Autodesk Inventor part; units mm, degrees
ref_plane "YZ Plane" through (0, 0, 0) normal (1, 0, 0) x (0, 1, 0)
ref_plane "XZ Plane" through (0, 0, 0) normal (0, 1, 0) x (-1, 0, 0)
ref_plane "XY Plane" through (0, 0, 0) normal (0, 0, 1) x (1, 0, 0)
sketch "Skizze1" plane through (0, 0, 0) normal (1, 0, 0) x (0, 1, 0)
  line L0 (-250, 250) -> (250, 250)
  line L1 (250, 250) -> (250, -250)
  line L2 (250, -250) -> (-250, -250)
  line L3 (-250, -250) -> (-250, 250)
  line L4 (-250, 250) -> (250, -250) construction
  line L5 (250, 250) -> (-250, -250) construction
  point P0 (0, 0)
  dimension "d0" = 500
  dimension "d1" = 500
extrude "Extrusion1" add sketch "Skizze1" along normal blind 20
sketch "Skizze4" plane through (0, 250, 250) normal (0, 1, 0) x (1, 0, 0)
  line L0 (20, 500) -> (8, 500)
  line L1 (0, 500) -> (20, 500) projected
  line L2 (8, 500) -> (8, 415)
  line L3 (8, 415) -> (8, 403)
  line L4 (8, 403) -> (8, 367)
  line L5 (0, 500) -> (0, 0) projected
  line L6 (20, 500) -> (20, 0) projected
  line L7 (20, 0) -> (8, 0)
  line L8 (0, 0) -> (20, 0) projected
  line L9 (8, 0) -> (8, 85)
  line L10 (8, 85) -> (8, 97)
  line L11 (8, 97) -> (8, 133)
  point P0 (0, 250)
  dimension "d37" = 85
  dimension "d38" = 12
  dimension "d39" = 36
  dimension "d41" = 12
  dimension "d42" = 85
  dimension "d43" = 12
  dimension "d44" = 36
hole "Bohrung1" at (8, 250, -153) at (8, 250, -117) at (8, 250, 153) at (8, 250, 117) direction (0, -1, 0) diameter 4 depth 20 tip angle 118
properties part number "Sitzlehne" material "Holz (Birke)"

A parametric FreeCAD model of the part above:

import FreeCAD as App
import Part
import Sketcher

V = App.Vector
Q = App.Units.Quantity

doc = App.newDocument("Part")
params = doc.addObject("Spreadsheet::Sheet", "Params")
for row, (alias, value) in enumerate([
    ("sketch1_width", "500 mm"),
    ("pad1_length", "20 mm"),
    ("sketch2_diameter", "4 mm"),
    ("hole_diameter", "4 mm"),
    ("hole_depth", "20 mm"),
], start=1):
    params.set(f"A{row}", alias)
    params.set(f"B{row}", "=" + value)
    params.setAlias(f"B{row}", alias)

body = doc.addObject("PartDesign::Body", "Body")

# Sketch on YZ plane
sketch1 = body.newObject("Sketcher::SketchObject", "Sketch")
sketch1.AttachmentSupport = (doc.getObject("YZ_Plane"), [""])
sketch1.MapMode = "FlatFace"
sketch1.addGeometry([
    Part.LineSegment(V(250, 250, 0), V(-250, 250, 0)),
    Part.LineSegment(V(-250, 250, 0), V(-250, -250, 0)),
    Part.LineSegment(V(-250, -250, 0), V(250, -250, 0)),
    Part.LineSegment(V(250, -250, 0), V(250, 250, 0)),
], False)
sketch1.addConstraint([
    Sketcher.Constraint("Coincident", 0, 2, 1, 1),
    Sketcher.Constraint("Coincident", 1, 2, 2, 1),
    Sketcher.Constraint("Coincident", 2, 2, 3, 1),
    Sketcher.Constraint("Coincident", 3, 2, 0, 1),
    Sketcher.Constraint("Horizontal", 0),
    Sketcher.Constraint("Vertical", 1),
    Sketcher.Constraint("Horizontal", 2),
    Sketcher.Constraint("Vertical", 3),
    Sketcher.Constraint("Symmetric", 0, 2, 2, 2, -1, 1),
    Sketcher.Constraint("Equal", 2, 1),
    Sketcher.Constraint("DistanceX", 0, 2, 0, 1, Q("500 mm")),
])
sketch1.setExpression("Constraints[10]", "Params.sketch1_width")
pad1 = body.newObject("PartDesign::Pad", "Pad")
pad1.Profile = sketch1
pad1.setExpression("Length", "Params.pad1_length")

# Sketch on XZ plane
sketch2 = body.newObject("Sketcher::SketchObject", "Sketch001")
sketch2.AttachmentSupport = (doc.getObject("XZ_Plane"), [""])
sketch2.MapMode = "FlatFace"
sketch2.AttachmentOffset = App.Placement(V(0, 0, -250), App.Rotation())
sketch2.addGeometry([
    Part.Circle(V(8, -153, 0), V(0, 0, 1), 2),
    Part.Circle(V(8, -117, 0), V(0, 0, 1), 2),
    Part.Circle(V(8, 153, 0), V(0, 0, 1), 2),
    Part.Circle(V(8, 117, 0), V(0, 0, 1), 2),
], False)
sketch2.addConstraint([
    Sketcher.Constraint("Equal", 0, 1),
    Sketcher.Constraint("Equal", 1, 2),
    Sketcher.Constraint("Equal", 2, 3),
    Sketcher.Constraint("Symmetric", 0, 3, 2, 3, -1),
    Sketcher.Constraint("Symmetric", 1, 3, 3, 3, -1),
    Sketcher.Constraint("Vertical", 0, 3, 1, 3),
    Sketcher.Constraint("Diameter", 0, Q("4 mm")),
    Sketcher.Constraint("DistanceX", -1, 1, 0, 3, Q("8 mm")),
    Sketcher.Constraint("DistanceY", 0, 3, -1, 1, Q("153 mm")),
    Sketcher.Constraint("DistanceY", 1, 3, -1, 1, Q("117 mm")),
])
sketch2.setExpression("Constraints[6]", "Params.sketch2_diameter")
doc.recompute()
hole = body.newObject("PartDesign::Hole", "Hole")
hole.Profile = sketch2
hole.ThreadType = "None"
hole.setExpression("Diameter", "Params.hole_diameter")
hole.DepthType = "Dimension"
hole.setExpression("Depth", "Params.hole_depth")
hole.DrillPoint = "Angled"
hole.DrillPointAngle = 118
hole.Reversed = True

doc.recompute()
